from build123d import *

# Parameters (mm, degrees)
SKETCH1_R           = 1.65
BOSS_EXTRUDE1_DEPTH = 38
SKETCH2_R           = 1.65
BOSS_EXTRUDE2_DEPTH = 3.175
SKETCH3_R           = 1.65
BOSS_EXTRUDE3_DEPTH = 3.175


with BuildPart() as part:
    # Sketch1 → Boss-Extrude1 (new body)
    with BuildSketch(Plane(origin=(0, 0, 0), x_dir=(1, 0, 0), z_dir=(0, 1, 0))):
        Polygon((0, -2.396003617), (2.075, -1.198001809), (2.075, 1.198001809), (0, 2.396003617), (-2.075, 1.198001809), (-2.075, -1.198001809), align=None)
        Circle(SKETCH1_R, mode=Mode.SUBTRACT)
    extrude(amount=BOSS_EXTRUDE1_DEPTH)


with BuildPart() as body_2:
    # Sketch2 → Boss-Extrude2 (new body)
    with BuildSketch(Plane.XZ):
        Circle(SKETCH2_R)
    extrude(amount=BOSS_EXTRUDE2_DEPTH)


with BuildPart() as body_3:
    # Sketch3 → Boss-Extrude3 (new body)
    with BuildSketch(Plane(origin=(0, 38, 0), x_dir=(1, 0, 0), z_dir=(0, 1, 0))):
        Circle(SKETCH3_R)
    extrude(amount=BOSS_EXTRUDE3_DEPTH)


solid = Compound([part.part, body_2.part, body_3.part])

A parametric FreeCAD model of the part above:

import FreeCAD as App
import Part
import Sketcher
from FreeCAD import Vector
Q = App.Units.Quantity

doc = App.newDocument("Part")
body = doc.addObject("PartDesign::Body", "Body")

# Sketch on XZ plane
sketch1 = doc.addObject("Sketcher::SketchObject", "Sketch")
body.addObject(sketch1)
sketch1.AttachmentSupport = (doc.XZ_Plane, [""])
sketch1.MapMode = "FlatFace"
sketch1.addGeometry([
    Part.LineSegment(Vector(0, 2.396004, 0), Vector(2.075, 1.198002, 0)),  # 0
    Part.LineSegment(Vector(2.075, 1.198002, 0), Vector(2.075, -1.198002, 0)),  # 1
    Part.LineSegment(Vector(2.075, -1.198002, 0), Vector(0, -2.396004, 0)),  # 2
    Part.LineSegment(Vector(0, -2.396004, 0), Vector(-2.075, -1.198002, 0)),  # 3
    Part.LineSegment(Vector(-2.075, -1.198002, 0), Vector(-2.075, 1.198002, 0)),  # 4
    Part.LineSegment(Vector(-2.075, 1.198002, 0), Vector(0, 2.396004, 0)),  # 5
    Part.Circle(Vector(0, 0, 0), Vector(0, 0, 1), 1.65),  # 6
], False)
sketch1.addConstraint([
    Sketcher.Constraint("Coincident", 0, 2, 1, 1),
    Sketcher.Constraint("Coincident", 1, 2, 2, 1),
    Sketcher.Constraint("Coincident", 2, 2, 3, 1),
    Sketcher.Constraint("Coincident", 3, 2, 4, 1),
    Sketcher.Constraint("Coincident", 4, 2, 5, 1),
    Sketcher.Constraint("Coincident", 5, 2, 0, 1),
    Sketcher.Constraint("Vertical", 1),
    Sketcher.Constraint("Vertical", 4),
    Sketcher.Constraint("Coincident", 6, 3, -1, 1),
    Sketcher.Constraint("Symmetric", 0, 2, 3, 2, -1, 1),
    Sketcher.Constraint("Symmetric", 2, 2, 5, 2, -1, 1),
    Sketcher.Constraint("PointOnObject", 2, 2, -2),
    Sketcher.Constraint("Parallel", 2, 5),
    Sketcher.Constraint("Horizontal", 1, 2, 3, 2),
    Sketcher.Constraint("Diameter", 6, 3.3),
    Sketcher.Constraint("Angle", 0, Q("-30 deg")),
    Sketcher.Constraint("DistanceX", 3, 2, 1, 2, 4.15),
    Sketcher.Constraint("DistanceY", -1, 1, 0, 2, 1.198002),
])
pad1 = doc.addObject("PartDesign::Pad", "Pad")
body.addObject(pad1)
pad1.Profile = sketch1
pad1.Length = 38
pad1.Reversed = True
body2 = doc.addObject("PartDesign::Body", "Body001")

# Sketch on XZ plane
sketch2 = doc.addObject("Sketcher::SketchObject", "Sketch001")
body2.addObject(sketch2)
sketch2.AttachmentSupport = (doc.getObject("XZ_Plane001"), [""])
sketch2.MapMode = "FlatFace"
sketch2.addGeometry(Part.Circle(Vector(0, 0, 0), Vector(0, 0, 1), 1.65), False)
sketch2.addConstraint([
    Sketcher.Constraint("Coincident", 0, 3, -1, 1),
    Sketcher.Constraint("Diameter", 0, 3.3),
])
pad2 = doc.addObject("PartDesign::Pad", "Pad001")
body2.addObject(pad2)
pad2.Profile = sketch2
pad2.Length = 3.175
body3 = doc.addObject("PartDesign::Body", "Body002")

# Sketch on XZ plane
sketch3 = doc.addObject("Sketcher::SketchObject", "Sketch002")
body3.addObject(sketch3)
sketch3.AttachmentSupport = (doc.getObject("XZ_Plane002"), [""])
sketch3.MapMode = "FlatFace"
sketch3.AttachmentOffset = App.Placement(Vector(0, 0, -38), App.Rotation())
sketch3.addGeometry(Part.Circle(Vector(0, 0, 0), Vector(0, 0, 1), 1.65), False)
sketch3.addConstraint([
    Sketcher.Constraint("Coincident", 0, 3, -1, 1),
    Sketcher.Constraint("Diameter", 0, 3.3),
])
pad3 = doc.addObject("PartDesign::Pad", "Pad002")
body3.addObject(pad3)
pad3.Profile = sketch3
pad3.Length = 3.175
pad3.Reversed = True

doc.recompute()
